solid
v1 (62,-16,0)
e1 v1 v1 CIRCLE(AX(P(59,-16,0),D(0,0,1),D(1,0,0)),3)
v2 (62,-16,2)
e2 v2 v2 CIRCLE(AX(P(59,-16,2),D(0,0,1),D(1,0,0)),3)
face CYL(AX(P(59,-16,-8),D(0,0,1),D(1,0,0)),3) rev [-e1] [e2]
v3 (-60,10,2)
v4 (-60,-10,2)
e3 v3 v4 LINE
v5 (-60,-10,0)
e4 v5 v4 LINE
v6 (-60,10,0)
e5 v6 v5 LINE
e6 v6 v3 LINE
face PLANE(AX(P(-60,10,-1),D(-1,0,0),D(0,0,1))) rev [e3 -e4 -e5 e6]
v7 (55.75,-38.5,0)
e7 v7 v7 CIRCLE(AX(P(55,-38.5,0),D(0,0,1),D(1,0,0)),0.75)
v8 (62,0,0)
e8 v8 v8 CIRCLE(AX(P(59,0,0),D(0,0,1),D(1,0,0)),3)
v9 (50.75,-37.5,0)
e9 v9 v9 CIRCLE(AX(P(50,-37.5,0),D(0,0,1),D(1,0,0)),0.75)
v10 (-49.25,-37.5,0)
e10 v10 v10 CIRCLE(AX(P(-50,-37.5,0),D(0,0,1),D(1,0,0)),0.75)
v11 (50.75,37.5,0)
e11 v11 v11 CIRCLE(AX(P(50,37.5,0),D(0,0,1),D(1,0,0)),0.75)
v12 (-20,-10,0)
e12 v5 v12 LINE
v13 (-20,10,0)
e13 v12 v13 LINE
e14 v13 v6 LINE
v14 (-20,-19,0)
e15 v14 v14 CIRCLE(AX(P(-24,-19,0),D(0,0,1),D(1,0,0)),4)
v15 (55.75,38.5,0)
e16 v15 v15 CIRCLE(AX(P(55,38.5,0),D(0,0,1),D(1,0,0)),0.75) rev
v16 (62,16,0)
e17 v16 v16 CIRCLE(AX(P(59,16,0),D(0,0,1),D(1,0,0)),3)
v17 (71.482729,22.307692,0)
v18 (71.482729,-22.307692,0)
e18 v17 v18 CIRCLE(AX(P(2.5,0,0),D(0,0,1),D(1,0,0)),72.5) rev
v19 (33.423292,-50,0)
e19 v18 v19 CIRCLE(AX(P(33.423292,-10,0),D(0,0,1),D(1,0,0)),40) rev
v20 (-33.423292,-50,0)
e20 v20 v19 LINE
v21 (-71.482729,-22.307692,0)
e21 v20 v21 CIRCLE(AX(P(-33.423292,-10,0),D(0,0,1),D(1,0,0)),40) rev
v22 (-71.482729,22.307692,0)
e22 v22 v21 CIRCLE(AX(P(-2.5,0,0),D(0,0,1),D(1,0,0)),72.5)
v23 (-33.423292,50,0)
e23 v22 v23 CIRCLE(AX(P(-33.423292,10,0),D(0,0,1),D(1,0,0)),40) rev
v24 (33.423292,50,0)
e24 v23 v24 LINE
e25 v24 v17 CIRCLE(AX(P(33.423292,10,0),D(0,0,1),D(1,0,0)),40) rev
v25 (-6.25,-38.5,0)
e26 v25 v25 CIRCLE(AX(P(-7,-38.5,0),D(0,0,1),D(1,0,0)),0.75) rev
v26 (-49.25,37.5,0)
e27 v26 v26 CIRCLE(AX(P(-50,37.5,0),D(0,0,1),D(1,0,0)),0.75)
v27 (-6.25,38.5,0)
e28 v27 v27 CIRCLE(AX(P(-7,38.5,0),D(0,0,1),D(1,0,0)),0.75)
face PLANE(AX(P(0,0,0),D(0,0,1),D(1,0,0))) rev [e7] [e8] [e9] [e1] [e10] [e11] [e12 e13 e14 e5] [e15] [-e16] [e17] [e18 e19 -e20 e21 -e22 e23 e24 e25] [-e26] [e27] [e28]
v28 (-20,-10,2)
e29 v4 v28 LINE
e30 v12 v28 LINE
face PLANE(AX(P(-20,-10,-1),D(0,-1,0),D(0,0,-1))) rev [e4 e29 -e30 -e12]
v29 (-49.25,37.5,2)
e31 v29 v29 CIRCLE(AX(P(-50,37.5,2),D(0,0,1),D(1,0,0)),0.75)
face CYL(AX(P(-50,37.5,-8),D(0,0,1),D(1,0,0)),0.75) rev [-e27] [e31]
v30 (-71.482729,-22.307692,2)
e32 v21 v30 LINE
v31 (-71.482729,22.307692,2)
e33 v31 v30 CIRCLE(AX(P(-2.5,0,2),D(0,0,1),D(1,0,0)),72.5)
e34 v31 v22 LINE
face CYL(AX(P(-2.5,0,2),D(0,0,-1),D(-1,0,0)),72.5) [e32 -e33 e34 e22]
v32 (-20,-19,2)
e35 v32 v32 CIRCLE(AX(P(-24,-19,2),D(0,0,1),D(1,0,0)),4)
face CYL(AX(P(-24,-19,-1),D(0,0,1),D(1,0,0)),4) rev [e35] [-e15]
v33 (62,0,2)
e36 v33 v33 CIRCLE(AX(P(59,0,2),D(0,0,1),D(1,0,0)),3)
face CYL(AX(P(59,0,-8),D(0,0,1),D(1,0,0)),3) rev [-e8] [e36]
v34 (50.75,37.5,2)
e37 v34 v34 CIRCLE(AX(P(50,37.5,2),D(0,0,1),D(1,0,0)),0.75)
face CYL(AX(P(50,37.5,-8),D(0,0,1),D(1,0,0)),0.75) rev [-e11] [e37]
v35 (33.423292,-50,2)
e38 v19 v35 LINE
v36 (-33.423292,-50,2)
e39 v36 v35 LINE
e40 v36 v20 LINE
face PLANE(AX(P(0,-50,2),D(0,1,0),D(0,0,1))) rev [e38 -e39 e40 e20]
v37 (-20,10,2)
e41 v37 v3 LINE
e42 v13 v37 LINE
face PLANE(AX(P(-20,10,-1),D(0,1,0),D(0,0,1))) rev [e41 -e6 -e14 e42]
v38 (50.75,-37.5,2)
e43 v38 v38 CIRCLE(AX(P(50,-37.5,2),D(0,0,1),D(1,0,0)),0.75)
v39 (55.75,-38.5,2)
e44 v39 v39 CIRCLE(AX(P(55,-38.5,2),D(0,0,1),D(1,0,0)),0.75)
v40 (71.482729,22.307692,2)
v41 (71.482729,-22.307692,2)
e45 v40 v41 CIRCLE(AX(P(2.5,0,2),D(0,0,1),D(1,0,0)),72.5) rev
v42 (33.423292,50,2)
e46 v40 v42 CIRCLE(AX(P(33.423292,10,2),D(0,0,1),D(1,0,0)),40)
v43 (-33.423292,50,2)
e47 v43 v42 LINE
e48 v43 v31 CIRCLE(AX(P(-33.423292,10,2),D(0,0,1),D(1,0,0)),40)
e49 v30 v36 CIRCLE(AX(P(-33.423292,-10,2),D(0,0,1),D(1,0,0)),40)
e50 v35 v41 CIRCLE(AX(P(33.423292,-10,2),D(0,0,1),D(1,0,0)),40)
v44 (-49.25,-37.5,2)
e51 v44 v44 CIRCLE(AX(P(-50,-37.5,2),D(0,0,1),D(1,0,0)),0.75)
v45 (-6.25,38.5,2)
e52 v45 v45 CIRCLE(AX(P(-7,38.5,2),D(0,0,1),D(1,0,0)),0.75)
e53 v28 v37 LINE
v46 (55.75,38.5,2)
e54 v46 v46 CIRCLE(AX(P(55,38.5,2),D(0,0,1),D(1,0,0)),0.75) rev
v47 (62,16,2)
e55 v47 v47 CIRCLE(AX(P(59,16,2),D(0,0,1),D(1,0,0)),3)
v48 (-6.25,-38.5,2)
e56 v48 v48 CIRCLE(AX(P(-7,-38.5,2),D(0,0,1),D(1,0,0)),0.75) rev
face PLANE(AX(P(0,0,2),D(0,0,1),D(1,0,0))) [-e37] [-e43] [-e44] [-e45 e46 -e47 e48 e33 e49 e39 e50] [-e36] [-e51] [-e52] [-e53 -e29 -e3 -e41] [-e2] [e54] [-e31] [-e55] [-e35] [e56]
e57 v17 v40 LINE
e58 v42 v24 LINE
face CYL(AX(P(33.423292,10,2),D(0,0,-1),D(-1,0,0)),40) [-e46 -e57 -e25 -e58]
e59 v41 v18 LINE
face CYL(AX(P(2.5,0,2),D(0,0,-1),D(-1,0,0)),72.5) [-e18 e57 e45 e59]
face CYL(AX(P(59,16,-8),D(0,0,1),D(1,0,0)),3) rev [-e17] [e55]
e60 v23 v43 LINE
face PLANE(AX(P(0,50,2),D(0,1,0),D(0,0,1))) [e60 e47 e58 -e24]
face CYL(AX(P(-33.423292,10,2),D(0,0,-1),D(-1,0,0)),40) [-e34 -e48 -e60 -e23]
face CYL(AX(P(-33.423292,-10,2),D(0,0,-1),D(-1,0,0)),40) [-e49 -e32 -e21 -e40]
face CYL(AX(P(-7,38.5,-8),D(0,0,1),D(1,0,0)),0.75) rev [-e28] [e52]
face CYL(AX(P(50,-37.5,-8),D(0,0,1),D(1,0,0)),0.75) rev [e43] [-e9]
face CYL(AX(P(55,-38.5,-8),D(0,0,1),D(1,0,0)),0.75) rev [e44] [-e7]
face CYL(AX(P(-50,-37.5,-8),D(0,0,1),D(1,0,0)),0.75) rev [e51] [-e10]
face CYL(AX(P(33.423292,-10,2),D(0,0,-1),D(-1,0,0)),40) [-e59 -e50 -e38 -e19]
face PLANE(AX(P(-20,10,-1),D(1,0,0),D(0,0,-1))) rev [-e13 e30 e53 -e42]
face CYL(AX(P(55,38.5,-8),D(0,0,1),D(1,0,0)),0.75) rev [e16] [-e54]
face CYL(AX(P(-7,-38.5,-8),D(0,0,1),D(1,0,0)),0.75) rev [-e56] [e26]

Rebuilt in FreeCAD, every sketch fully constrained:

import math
import FreeCAD as App
import Part
import Sketcher
from FreeCAD import Vector


def edges_at(feature, points):
    """Names of the edges that pass closest to the given points."""
    edges = feature.Shape.Edges
    near = lambda p: min(range(len(edges)), key=lambda i: edges[i].distToShape(Part.Vertex(*p))[0])
    return sorted({f"Edge{near(p) + 1}" for p in points})


def add_polygon(sketch, points):
    """Adds a closed chain of lines whose ends are joined by coincident constraints."""
    first, n = sketch.GeometryCount, len(points)
    for a, b in zip(points, points[1:] + points[:1]):
        sketch.addGeometry(Part.LineSegment(App.Vector(*a, 0), App.Vector(*b, 0)), False)
    for i in range(n):
        sketch.addConstraint(Sketcher.Constraint("Coincident", first + i, 2, first + (i + 1) % n, 1))

doc = App.newDocument("Part")
params = doc.addObject("Spreadsheet::Sheet", "Params")
for row, (alias, value) in enumerate([
    ("sketch1_radius", "72.5 mm"),
    ("sketch1_width", "110 mm"),
    ("pad1_length", "2 mm"),
    ("fillet_radius", "40 mm"),
    ("sketch2_diameter", "8 mm"),
    ("sketch2_width", "40 mm"),
    ("sketch2_height", "20 mm"),
    ("pocket1_length", "3 mm"),
    ("sketch3_diameter", "6 mm"),
    ("sketch3_diameter2", "1.5 mm"),
    ("pocket2_length", "10 mm"),
    ("sketch4_diameter", "1.5 mm"),
    ("pocket3_length", "10 mm"),
], start=1):
    params.set(f"A{row}", alias)
    params.set(f"B{row}", "=" + value)
    params.setAlias(f"B{row}", alias)

body = doc.addObject("PartDesign::Body", "Body")

# Sketch on XY plane
sketch1 = body.newObject("Sketcher::SketchObject", "Sketch")
sketch1.AttachmentSupport = (doc.getObject("XY_Plane"), [""])
sketch1.MapMode = "FlatFace"
sketch1.addGeometry([
    Part.ArcOfCircle(Part.Circle(Vector(-2.5, 0, 0), Vector(0, 0, 1), 72.5), math.radians(136.397181), math.radians(223.602819)),
    Part.LineSegment(Vector(-55, -50, 0), Vector(55, -50, 0)),
    Part.ArcOfCircle(Part.Circle(Vector(2.5, 0, 0), Vector(0, 0, 1), 72.5), math.radians(-43.602819), math.radians(43.602819)),
    Part.LineSegment(Vector(55, 50, 0), Vector(-55, 50, 0)),
], False)
sketch1.addConstraint([
    Sketcher.Constraint("Coincident", 0, 2, 1, 1),
    Sketcher.Constraint("Coincident", 1, 2, 2, 1),
    Sketcher.Constraint("Coincident", 2, 2, 3, 1),
    Sketcher.Constraint("Coincident", 3, 2, 0, 1),
    Sketcher.Constraint("Horizontal", 1),
    Sketcher.Constraint("Horizontal", 3),
    Sketcher.Constraint("Equal", 0, 2),
    Sketcher.Constraint("Symmetric", 0, 3, 2, 3, -1, 1),
    Sketcher.Constraint("Symmetric", 1, 2, 2, 2, -1),
    Sketcher.Constraint("Radius", 0, 72.5),
    Sketcher.Constraint("DistanceX", 1, 1, 1, 2, 110.0),
    Sketcher.Constraint("DistanceY", 0, 2, -1, 1, 50.0),
])
sketch1.setExpression("Constraints[9]", "Params.sketch1_radius")
sketch1.setExpression("Constraints[10]", "Params.sketch1_width")
pad1 = body.newObject("PartDesign::Pad", "Pad")
pad1.Profile = sketch1
pad1.setExpression("Length", "Params.pad1_length")
doc.recompute()

fillet = body.newObject("PartDesign::Fillet", "Fillet")
fillet.Base = (pad1, edges_at(pad1, [
    (-55, 50, 1),
    (55, 50, 1),
    (55, -50, 1),
    (-55, -50, 1),
]))
fillet.setExpression("Radius", "Params.fillet_radius")

# Sketch on XY plane
sketch2 = body.newObject("Sketcher::SketchObject", "Sketch001")
sketch2.AttachmentSupport = (doc.getObject("XY_Plane"), [""])
sketch2.MapMode = "FlatFace"
sketch2.AttachmentOffset = App.Placement(Vector(0, 0, 2), App.Rotation())
sketch2.addGeometry(Part.Circle(Vector(-24, -19, 0), Vector(0, 0, 1), 4), False)  # 0
add_polygon(sketch2, [(-60, 10), (-60, -10), (-20, -10), (-20, 10)])  # lines 1-4
sketch2.addConstraint([
    Sketcher.Constraint("Vertical", 1),
    Sketcher.Constraint("Horizontal", 2),
    Sketcher.Constraint("Vertical", 3),
    Sketcher.Constraint("Horizontal", 4),
    Sketcher.Constraint("Diameter", 0, 8.0),
    Sketcher.Constraint("DistanceX", 2, 1, 2, 2, 40.0),
    Sketcher.Constraint("DistanceY", 1, 2, 1, 1, 20.0),
    Sketcher.Constraint("DistanceX", 0, 3, -1, 1, 24.0),
    Sketcher.Constraint("DistanceY", 0, 3, -1, 1, 19.0),
    Sketcher.Constraint("DistanceX", 1, 2, -1, 1, 60.0),
    Sketcher.Constraint("DistanceY", 1, 2, -1, 1, 10.0),
])
sketch2.setExpression("Constraints[8]", "Params.sketch2_diameter")
sketch2.setExpression("Constraints[9]", "Params.sketch2_width")
sketch2.setExpression("Constraints[10]", "Params.sketch2_height")
pocket1 = body.newObject("PartDesign::Pocket", "Pocket")
pocket1.Profile = sketch2
pocket1.setExpression("Length", "Params.pocket1_length")

# Sketch on XY plane
sketch3 = body.newObject("Sketcher::SketchObject", "Sketch002")
sketch3.AttachmentSupport = (doc.getObject("XY_Plane"), [""])
sketch3.MapMode = "FlatFace"
sketch3.AttachmentOffset = App.Placement(Vector(0, 0, 2), App.Rotation())
sketch3.addGeometry([
    Part.Circle(Vector(-7, 38.5, 0), Vector(0, 0, 1), 0.75),  # 0
    Part.Circle(Vector(55, 38.5, 0), Vector(0, 0, 1), 0.75),  # 1
    Part.Circle(Vector(55, -38.5, 0), Vector(0, 0, 1), 0.75),  # 2
    Part.Circle(Vector(-7, -38.5, 0), Vector(0, 0, 1), 0.75),  # 3
    Part.Circle(Vector(59, 16, 0), Vector(0, 0, 1), 3),  # 4
    Part.Circle(Vector(59, -16, 0), Vector(0, 0, 1), 3),  # 5
    Part.Circle(Vector(59, 0, 0), Vector(0, 0, 1), 3),  # 6
], False)
sketch3.addConstraint([
    Sketcher.Constraint("Equal", 0, 1),
    Sketcher.Constraint("Equal", 1, 2),
    Sketcher.Constraint("Equal", 2, 3),
    Sketcher.Constraint("Equal", 4, 5),
    Sketcher.Constraint("Equal", 5, 6),
    Sketcher.Constraint("Symmetric", 1, 3, 2, 3, -1),
    Sketcher.Constraint("Symmetric", 0, 3, 3, 3, -1),
    Sketcher.Constraint("Symmetric", 4, 3, 5, 3, -1),
    Sketcher.Constraint("PointOnObject", 6, 3, -1),
    Sketcher.Constraint("Horizontal", 0, 3, 1, 3),
    Sketcher.Constraint("Vertical", 5, 3, 6, 3),
    Sketcher.Constraint("Diameter", 4, 6.0),
    Sketcher.Constraint("Diameter", 0, 1.5),
    Sketcher.Constraint("DistanceX", 0, 3, -1, 1, 7.0),
    Sketcher.Constraint("DistanceX", -1, 1, 1, 3, 55.0),
    Sketcher.Constraint("DistanceX", -1, 1, 4, 3, 59.0),
    Sketcher.Constraint("DistanceY", -1, 1, 4, 3, 16.0),
    Sketcher.Constraint("DistanceY", 2, 3, 1, 3, 77.0),
])
sketch3.setExpression("Constraints[11]", "Params.sketch3_diameter")
sketch3.setExpression("Constraints[12]", "Params.sketch3_diameter2")
pocket2 = body.newObject("PartDesign::Pocket", "Pocket001")
pocket2.Profile = sketch3
pocket2.setExpression("Length", "Params.pocket2_length")

# Sketch on XY plane
sketch4 = body.newObject("Sketcher::SketchObject", "Sketch003")
sketch4.AttachmentSupport = (doc.getObject("XY_Plane"), [""])
sketch4.MapMode = "FlatFace"
sketch4.AttachmentOffset = App.Placement(Vector(0, 0, 2), App.Rotation())
sketch4.addGeometry([
    Part.Circle(Vector(-50, 37.5, 0), Vector(0, 0, 1), 0.75),
    Part.Circle(Vector(50, 37.5, 0), Vector(0, 0, 1), 0.75),
    Part.Circle(Vector(50, -37.5, 0), Vector(0, 0, 1), 0.75),
    Part.Circle(Vector(-50, -37.5, 0), Vector(0, 0, 1), 0.75),
], False)
sketch4.addConstraint([
    Sketcher.Constraint("Equal", 0, 1),
    Sketcher.Constraint("Equal", 1, 2),
    Sketcher.Constraint("Equal", 2, 3),
    Sketcher.Constraint("Symmetric", 0, 3, 2, 3, -1, 1),
    Sketcher.Constraint("Symmetric", 1, 3, 3, 3, -1, 1),
    Sketcher.Constraint("Symmetric", 0, 3, 1, 3, -2),
    Sketcher.Constraint("Diameter", 0, 1.5),
    Sketcher.Constraint("DistanceX", 0, 3, -1, 1, 50.0),
    Sketcher.Constraint("DistanceY", 2, 3, 1, 3, 75.0),
])
sketch4.setExpression("Constraints[6]", "Params.sketch4_diameter")
pocket3 = body.newObject("PartDesign::Pocket", "Pocket002")
pocket3.Profile = sketch4
pocket3.setExpression("Length", "Params.pocket3_length")

doc.recompute()
